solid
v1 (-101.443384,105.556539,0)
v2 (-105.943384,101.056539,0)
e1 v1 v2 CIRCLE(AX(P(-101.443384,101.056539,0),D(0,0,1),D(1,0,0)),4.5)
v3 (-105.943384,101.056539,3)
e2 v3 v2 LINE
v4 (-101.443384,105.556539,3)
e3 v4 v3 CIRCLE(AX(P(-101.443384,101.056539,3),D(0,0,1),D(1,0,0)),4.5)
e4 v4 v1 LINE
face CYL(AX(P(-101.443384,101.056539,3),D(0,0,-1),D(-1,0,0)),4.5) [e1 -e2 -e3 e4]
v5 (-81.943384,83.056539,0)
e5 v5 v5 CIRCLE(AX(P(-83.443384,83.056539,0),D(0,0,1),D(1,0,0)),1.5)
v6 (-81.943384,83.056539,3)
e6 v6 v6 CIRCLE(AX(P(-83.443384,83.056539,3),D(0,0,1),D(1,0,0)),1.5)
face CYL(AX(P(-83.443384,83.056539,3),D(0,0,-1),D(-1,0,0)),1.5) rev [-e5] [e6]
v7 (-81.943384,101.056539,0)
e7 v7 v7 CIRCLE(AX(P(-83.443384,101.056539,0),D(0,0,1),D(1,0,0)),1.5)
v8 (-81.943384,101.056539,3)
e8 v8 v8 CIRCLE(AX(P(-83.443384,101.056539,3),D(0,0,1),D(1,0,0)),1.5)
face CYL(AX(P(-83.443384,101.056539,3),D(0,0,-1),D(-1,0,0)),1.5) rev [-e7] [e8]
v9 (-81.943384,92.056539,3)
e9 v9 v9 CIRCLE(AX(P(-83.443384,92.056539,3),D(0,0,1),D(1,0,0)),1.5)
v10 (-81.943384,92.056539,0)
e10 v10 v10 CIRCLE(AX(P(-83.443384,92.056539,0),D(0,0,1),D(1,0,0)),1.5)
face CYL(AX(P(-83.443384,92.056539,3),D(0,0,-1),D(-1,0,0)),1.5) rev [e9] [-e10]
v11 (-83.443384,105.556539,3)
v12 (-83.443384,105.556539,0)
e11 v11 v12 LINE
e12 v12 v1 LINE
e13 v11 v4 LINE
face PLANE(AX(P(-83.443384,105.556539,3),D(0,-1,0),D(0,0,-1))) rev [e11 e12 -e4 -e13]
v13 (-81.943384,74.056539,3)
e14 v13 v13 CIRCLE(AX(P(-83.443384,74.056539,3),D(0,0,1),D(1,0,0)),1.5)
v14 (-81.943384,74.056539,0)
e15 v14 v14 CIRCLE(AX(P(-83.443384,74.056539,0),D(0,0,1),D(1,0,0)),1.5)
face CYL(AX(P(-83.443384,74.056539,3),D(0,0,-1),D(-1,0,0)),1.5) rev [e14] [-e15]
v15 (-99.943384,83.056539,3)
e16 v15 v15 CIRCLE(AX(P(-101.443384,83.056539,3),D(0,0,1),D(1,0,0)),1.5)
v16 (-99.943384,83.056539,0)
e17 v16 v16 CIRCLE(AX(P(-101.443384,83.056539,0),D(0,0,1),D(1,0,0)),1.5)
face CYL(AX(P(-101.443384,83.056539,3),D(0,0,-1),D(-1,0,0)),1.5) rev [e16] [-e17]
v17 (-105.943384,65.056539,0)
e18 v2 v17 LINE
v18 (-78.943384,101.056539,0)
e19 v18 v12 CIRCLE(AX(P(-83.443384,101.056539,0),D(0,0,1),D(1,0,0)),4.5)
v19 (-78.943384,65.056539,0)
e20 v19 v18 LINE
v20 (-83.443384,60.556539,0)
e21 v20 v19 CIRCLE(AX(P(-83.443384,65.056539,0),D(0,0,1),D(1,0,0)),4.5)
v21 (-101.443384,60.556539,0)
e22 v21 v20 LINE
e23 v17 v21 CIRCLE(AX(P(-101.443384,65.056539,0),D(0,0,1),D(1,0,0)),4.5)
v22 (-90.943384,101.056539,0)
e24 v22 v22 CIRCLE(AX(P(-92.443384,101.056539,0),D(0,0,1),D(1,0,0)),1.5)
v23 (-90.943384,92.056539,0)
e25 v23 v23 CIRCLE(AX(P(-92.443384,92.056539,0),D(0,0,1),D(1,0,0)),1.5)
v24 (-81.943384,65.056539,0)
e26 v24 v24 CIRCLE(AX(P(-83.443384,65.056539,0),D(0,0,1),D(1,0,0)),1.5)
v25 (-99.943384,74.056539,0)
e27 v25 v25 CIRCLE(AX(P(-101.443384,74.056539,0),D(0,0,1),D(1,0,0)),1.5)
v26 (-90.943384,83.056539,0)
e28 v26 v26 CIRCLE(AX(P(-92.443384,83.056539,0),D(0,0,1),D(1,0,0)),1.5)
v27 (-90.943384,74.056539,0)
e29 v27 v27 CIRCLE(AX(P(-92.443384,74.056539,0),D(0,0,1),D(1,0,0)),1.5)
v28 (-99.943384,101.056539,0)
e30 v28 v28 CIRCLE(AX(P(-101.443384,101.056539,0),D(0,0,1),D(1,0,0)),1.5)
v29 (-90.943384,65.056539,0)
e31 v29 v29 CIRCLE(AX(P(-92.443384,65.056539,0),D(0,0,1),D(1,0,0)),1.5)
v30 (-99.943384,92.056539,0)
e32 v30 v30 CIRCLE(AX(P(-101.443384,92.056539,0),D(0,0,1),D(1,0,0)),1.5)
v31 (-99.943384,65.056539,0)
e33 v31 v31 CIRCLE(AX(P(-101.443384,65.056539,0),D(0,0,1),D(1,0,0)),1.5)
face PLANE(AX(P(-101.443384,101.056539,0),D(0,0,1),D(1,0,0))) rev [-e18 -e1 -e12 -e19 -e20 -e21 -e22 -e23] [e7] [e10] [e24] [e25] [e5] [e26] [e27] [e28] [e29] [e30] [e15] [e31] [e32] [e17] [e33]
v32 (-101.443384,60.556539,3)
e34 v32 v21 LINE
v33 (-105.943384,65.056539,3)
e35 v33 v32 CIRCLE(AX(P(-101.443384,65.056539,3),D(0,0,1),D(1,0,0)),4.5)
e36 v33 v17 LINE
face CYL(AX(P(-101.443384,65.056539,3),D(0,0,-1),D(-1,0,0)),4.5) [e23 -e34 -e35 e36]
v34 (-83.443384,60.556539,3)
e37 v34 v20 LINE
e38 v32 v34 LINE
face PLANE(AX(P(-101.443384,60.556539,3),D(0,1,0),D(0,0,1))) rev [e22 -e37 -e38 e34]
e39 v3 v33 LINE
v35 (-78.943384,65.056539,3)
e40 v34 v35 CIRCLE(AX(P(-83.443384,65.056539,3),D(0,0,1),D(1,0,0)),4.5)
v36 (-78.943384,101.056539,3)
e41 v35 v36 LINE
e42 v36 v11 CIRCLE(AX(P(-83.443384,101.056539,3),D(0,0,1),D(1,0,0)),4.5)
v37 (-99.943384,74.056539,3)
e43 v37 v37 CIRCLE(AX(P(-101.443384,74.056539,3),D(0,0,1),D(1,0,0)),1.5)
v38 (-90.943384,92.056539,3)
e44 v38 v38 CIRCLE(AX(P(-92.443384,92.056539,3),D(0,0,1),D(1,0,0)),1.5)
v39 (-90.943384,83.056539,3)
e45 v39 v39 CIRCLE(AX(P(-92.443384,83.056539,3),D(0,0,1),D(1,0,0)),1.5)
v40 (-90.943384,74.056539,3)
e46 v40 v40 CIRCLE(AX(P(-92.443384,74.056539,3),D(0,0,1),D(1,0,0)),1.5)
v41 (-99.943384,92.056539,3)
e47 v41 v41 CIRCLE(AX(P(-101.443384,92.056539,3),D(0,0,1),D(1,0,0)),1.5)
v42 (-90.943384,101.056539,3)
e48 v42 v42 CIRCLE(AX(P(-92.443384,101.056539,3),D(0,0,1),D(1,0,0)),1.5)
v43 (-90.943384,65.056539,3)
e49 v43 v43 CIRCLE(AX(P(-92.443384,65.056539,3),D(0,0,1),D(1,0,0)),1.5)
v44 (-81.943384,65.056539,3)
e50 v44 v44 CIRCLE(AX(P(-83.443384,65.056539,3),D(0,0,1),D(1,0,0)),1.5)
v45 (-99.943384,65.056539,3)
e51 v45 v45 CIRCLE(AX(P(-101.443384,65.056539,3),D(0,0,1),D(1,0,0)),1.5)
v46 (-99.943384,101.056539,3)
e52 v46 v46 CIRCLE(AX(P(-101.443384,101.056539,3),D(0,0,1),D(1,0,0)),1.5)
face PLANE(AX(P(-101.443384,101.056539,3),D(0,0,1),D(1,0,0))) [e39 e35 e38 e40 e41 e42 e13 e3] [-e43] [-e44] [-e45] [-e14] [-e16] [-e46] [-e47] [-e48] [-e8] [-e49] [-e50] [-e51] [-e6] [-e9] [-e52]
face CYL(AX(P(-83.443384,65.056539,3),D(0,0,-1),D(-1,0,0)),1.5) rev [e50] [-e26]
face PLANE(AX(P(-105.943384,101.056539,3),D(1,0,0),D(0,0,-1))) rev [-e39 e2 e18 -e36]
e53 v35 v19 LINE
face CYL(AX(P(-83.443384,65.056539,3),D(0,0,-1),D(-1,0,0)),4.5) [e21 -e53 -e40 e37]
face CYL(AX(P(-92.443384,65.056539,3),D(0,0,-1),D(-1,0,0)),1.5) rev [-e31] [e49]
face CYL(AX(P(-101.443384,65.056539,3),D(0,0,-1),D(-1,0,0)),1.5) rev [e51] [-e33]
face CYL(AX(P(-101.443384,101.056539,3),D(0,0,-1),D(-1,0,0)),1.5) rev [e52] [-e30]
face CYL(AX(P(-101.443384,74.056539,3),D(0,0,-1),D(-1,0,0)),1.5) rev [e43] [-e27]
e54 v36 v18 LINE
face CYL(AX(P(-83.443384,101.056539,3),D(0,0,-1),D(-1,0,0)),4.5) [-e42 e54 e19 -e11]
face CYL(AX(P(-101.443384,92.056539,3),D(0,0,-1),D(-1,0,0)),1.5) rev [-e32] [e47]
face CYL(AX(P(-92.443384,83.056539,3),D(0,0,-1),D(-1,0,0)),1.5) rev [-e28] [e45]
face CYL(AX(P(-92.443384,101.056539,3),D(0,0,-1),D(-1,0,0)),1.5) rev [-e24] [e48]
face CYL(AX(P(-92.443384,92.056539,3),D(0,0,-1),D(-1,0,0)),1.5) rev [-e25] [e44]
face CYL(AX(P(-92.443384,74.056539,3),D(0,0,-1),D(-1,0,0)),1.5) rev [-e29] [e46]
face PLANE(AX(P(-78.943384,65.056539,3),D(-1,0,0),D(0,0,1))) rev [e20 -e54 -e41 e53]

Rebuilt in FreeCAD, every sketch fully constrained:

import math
import FreeCAD as App
import Part
import Sketcher

V = App.Vector
Q = App.Units.Quantity

doc = App.newDocument("Part")
body = doc.addObject("PartDesign::Body", "Body")

# Sketch on XY plane
sketch1 = body.newObject("Sketcher::SketchObject", "Sketch")
sketch1.AttachmentSupport = (doc.getObject("XY_Plane"), [""])
sketch1.MapMode = "FlatFace"
sketch1.addGeometry(Part.LineSegment(V(-105.9, 101.1, 0), V(-105.9, 65.1, 0)), False)
sketch1.addGeometry(Part.ArcOfCircle(Part.Circle(V(-101.4, 65.1, 0), V(0, 0, 1), 4.5), math.radians(-180), math.radians(-90)), False)
sketch1.addGeometry(Part.LineSegment(V(-101.4, 60.6, 0), V(-83.4, 60.6, 0)), False)
sketch1.addGeometry(Part.ArcOfCircle(Part.Circle(V(-83.4, 65.1, 0), V(0, 0, 1), 4.5), math.radians(-90), math.radians(0)), False)
sketch1.addGeometry(Part.LineSegment(V(-78.9, 65.1, 0), V(-78.9, 101.1, 0)), False)
sketch1.addGeometry(Part.ArcOfCircle(Part.Circle(V(-83.4, 101.1, 0), V(0, 0, 1), 4.5), math.radians(0), math.radians(90)), False)
sketch1.addGeometry(Part.LineSegment(V(-83.4, 105.6, 0), V(-101.4, 105.6, 0)), False)
sketch1.addGeometry(Part.ArcOfCircle(Part.Circle(V(-101.4, 101.1, 0), V(0, 0, 1), 4.5), math.radians(90), math.radians(180)), False)
sketch1.addGeometry(Part.Circle(V(-101.4, 65.1, 0), V(0, 0, 1), 1.5), False)
sketch1.addGeometry(Part.Circle(V(-101.4, 74.1, 0), V(0, 0, 1), 1.5), False)
sketch1.addGeometry(Part.Circle(V(-92.4, 65.1, 0), V(0, 0, 1), 1.5), False)
sketch1.addGeometry(Part.Circle(V(-83.4, 65.1, 0), V(0, 0, 1), 1.5), False)
sketch1.addGeometry(Part.Circle(V(-92.4, 74.1, 0), V(0, 0, 1), 1.5), False)
sketch1.addGeometry(Part.Circle(V(-83.4, 74.1, 0), V(0, 0, 1), 1.5), False)
sketch1.addGeometry(Part.Circle(V(-101.4, 83.1, 0), V(0, 0, 1), 1.5), False)
sketch1.addGeometry(Part.Circle(V(-101.4, 92.1, 0), V(0, 0, 1), 1.5), False)
sketch1.addGeometry(Part.Circle(V(-101.4, 101.1, 0), V(0, 0, 1), 1.5), False)
sketch1.addGeometry(Part.Circle(V(-92.4, 83.1, 0), V(0, 0, 1), 1.5), False)
sketch1.addGeometry(Part.Circle(V(-92.4, 92.1, 0), V(0, 0, 1), 1.5), False)
sketch1.addGeometry(Part.Circle(V(-83.4, 83.1, 0), V(0, 0, 1), 1.5), False)
sketch1.addGeometry(Part.Circle(V(-83.4, 92.1, 0), V(0, 0, 1), 1.5), False)
sketch1.addGeometry(Part.Circle(V(-92.4, 101.1, 0), V(0, 0, 1), 1.5), False)
sketch1.addGeometry(Part.Circle(V(-83.4, 101.1, 0), V(0, 0, 1), 1.5), False)
sketch1.addConstraint(Sketcher.Constraint("Tangent", 0, 2, 1, 1))
sketch1.addConstraint(Sketcher.Constraint("Tangent", 1, 2, 2, 1))
sketch1.addConstraint(Sketcher.Constraint("Tangent", 2, 2, 3, 1))
sketch1.addConstraint(Sketcher.Constraint("Tangent", 3, 2, 4, 1))
sketch1.addConstraint(Sketcher.Constraint("Tangent", 4, 2, 5, 1))
sketch1.addConstraint(Sketcher.Constraint("Tangent", 5, 2, 6, 1))
sketch1.addConstraint(Sketcher.Constraint("Tangent", 6, 2, 7, 1))
sketch1.addConstraint(Sketcher.Constraint("Tangent", 7, 2, 0, 1))
sketch1.addConstraint(Sketcher.Constraint("Vertical", 0))
sketch1.addConstraint(Sketcher.Constraint("Horizontal", 2))
sketch1.addConstraint(Sketcher.Constraint("Vertical", 4))
sketch1.addConstraint(Sketcher.Constraint("Horizontal", 6))
sketch1.addConstraint(Sketcher.Constraint("Coincident", 8, 3, 1, 3))
sketch1.addConstraint(Sketcher.Constraint("Coincident", 11, 3, 3, 3))
sketch1.addConstraint(Sketcher.Constraint("Coincident", 16, 3, 7, 3))
sketch1.addConstraint(Sketcher.Constraint("Coincident", 22, 3, 5, 3))
sketch1.addConstraint(Sketcher.Constraint("Equal", 1, 3))
sketch1.addConstraint(Sketcher.Constraint("Equal", 3, 5))
sketch1.addConstraint(Sketcher.Constraint("Equal", 5, 7))
sketch1.addConstraint(Sketcher.Constraint("Equal", 8, 9))
sketch1.addConstraint(Sketcher.Constraint("Equal", 9, 10))
sketch1.addConstraint(Sketcher.Constraint("Equal", 10, 11))
sketch1.addConstraint(Sketcher.Constraint("Equal", 11, 12))
sketch1.addConstraint(Sketcher.Constraint("Equal", 12, 13))
sketch1.addConstraint(Sketcher.Constraint("Equal", 13, 14))
sketch1.addConstraint(Sketcher.Constraint("Equal", 14, 15))
sketch1.addConstraint(Sketcher.Constraint("Equal", 15, 16))
sketch1.addConstraint(Sketcher.Constraint("Equal", 16, 17))
sketch1.addConstraint(Sketcher.Constraint("Equal", 17, 18))
sketch1.addConstraint(Sketcher.Constraint("Equal", 18, 19))
sketch1.addConstraint(Sketcher.Constraint("Equal", 19, 20))
sketch1.addConstraint(Sketcher.Constraint("Equal", 20, 21))
sketch1.addConstraint(Sketcher.Constraint("Equal", 21, 22))
sketch1.addConstraint(Sketcher.Constraint("Horizontal", 8, 3, 10, 3))
sketch1.addConstraint(Sketcher.Constraint("Horizontal", 9, 3, 12, 3))
sketch1.addConstraint(Sketcher.Constraint("Horizontal", 12, 3, 13, 3))
sketch1.addConstraint(Sketcher.Constraint("Horizontal", 14, 3, 17, 3))
sketch1.addConstraint(Sketcher.Constraint("Horizontal", 15, 3, 18, 3))
sketch1.addConstraint(Sketcher.Constraint("Horizontal", 17, 3, 19, 3))
sketch1.addConstraint(Sketcher.Constraint("Horizontal", 18, 3, 20, 3))
sketch1.addConstraint(Sketcher.Constraint("Horizontal", 16, 3, 21, 3))
sketch1.addConstraint(Sketcher.Constraint("Vertical", 8, 3, 9, 3))
sketch1.addConstraint(Sketcher.Constraint("Vertical", 10, 3, 12, 3))
sketch1.addConstraint(Sketcher.Constraint("Vertical", 11, 3, 13, 3))
sketch1.addConstraint(Sketcher.Constraint("Vertical", 9, 3, 14, 3))
sketch1.addConstraint(Sketcher.Constraint("Vertical", 14, 3, 15, 3))
sketch1.addConstraint(Sketcher.Constraint("Vertical", 12, 3, 17, 3))
sketch1.addConstraint(Sketcher.Constraint("Vertical", 17, 3, 18, 3))
sketch1.addConstraint(Sketcher.Constraint("Vertical", 13, 3, 19, 3))
sketch1.addConstraint(Sketcher.Constraint("Vertical", 19, 3, 20, 3))
sketch1.addConstraint(Sketcher.Constraint("Vertical", 18, 3, 21, 3))
sketch1.addConstraint(Sketcher.Constraint("Diameter", 8, Q("3 mm")))
sketch1.addConstraint(Sketcher.Constraint("Radius", 1, Q("4.5 mm")))
sketch1.addConstraint(Sketcher.Constraint("DistanceX", 2, 1, 2, 2, Q("18 mm")))
sketch1.addConstraint(Sketcher.Constraint("DistanceY", 0, 2, 0, 1, Q("36 mm")))
sketch1.addConstraint(Sketcher.Constraint("DistanceY", 1, 3, 9, 3, Q("9 mm")))
sketch1.addConstraint(Sketcher.Constraint("DistanceX", 1, 3, 10, 3, Q("9 mm")))
sketch1.addConstraint(Sketcher.Constraint("DistanceY", 9, 3, 14, 3, Q("9 mm")))
sketch1.addConstraint(Sketcher.Constraint("DistanceY", 15, 3, 7, 3, Q("9 mm")))
sketch1.addConstraint(Sketcher.Constraint("DistanceY", -1, 1, 1, 3, Q("65.056539 mm")))
sketch1.addConstraint(Sketcher.Constraint("DistanceX", 1, 3, -1, 1, Q("101.443384 mm")))
pad1 = body.newObject("PartDesign::Pad", "Pad")
pad1.Profile = sketch1
pad1.Length = 3

doc.recompute()
